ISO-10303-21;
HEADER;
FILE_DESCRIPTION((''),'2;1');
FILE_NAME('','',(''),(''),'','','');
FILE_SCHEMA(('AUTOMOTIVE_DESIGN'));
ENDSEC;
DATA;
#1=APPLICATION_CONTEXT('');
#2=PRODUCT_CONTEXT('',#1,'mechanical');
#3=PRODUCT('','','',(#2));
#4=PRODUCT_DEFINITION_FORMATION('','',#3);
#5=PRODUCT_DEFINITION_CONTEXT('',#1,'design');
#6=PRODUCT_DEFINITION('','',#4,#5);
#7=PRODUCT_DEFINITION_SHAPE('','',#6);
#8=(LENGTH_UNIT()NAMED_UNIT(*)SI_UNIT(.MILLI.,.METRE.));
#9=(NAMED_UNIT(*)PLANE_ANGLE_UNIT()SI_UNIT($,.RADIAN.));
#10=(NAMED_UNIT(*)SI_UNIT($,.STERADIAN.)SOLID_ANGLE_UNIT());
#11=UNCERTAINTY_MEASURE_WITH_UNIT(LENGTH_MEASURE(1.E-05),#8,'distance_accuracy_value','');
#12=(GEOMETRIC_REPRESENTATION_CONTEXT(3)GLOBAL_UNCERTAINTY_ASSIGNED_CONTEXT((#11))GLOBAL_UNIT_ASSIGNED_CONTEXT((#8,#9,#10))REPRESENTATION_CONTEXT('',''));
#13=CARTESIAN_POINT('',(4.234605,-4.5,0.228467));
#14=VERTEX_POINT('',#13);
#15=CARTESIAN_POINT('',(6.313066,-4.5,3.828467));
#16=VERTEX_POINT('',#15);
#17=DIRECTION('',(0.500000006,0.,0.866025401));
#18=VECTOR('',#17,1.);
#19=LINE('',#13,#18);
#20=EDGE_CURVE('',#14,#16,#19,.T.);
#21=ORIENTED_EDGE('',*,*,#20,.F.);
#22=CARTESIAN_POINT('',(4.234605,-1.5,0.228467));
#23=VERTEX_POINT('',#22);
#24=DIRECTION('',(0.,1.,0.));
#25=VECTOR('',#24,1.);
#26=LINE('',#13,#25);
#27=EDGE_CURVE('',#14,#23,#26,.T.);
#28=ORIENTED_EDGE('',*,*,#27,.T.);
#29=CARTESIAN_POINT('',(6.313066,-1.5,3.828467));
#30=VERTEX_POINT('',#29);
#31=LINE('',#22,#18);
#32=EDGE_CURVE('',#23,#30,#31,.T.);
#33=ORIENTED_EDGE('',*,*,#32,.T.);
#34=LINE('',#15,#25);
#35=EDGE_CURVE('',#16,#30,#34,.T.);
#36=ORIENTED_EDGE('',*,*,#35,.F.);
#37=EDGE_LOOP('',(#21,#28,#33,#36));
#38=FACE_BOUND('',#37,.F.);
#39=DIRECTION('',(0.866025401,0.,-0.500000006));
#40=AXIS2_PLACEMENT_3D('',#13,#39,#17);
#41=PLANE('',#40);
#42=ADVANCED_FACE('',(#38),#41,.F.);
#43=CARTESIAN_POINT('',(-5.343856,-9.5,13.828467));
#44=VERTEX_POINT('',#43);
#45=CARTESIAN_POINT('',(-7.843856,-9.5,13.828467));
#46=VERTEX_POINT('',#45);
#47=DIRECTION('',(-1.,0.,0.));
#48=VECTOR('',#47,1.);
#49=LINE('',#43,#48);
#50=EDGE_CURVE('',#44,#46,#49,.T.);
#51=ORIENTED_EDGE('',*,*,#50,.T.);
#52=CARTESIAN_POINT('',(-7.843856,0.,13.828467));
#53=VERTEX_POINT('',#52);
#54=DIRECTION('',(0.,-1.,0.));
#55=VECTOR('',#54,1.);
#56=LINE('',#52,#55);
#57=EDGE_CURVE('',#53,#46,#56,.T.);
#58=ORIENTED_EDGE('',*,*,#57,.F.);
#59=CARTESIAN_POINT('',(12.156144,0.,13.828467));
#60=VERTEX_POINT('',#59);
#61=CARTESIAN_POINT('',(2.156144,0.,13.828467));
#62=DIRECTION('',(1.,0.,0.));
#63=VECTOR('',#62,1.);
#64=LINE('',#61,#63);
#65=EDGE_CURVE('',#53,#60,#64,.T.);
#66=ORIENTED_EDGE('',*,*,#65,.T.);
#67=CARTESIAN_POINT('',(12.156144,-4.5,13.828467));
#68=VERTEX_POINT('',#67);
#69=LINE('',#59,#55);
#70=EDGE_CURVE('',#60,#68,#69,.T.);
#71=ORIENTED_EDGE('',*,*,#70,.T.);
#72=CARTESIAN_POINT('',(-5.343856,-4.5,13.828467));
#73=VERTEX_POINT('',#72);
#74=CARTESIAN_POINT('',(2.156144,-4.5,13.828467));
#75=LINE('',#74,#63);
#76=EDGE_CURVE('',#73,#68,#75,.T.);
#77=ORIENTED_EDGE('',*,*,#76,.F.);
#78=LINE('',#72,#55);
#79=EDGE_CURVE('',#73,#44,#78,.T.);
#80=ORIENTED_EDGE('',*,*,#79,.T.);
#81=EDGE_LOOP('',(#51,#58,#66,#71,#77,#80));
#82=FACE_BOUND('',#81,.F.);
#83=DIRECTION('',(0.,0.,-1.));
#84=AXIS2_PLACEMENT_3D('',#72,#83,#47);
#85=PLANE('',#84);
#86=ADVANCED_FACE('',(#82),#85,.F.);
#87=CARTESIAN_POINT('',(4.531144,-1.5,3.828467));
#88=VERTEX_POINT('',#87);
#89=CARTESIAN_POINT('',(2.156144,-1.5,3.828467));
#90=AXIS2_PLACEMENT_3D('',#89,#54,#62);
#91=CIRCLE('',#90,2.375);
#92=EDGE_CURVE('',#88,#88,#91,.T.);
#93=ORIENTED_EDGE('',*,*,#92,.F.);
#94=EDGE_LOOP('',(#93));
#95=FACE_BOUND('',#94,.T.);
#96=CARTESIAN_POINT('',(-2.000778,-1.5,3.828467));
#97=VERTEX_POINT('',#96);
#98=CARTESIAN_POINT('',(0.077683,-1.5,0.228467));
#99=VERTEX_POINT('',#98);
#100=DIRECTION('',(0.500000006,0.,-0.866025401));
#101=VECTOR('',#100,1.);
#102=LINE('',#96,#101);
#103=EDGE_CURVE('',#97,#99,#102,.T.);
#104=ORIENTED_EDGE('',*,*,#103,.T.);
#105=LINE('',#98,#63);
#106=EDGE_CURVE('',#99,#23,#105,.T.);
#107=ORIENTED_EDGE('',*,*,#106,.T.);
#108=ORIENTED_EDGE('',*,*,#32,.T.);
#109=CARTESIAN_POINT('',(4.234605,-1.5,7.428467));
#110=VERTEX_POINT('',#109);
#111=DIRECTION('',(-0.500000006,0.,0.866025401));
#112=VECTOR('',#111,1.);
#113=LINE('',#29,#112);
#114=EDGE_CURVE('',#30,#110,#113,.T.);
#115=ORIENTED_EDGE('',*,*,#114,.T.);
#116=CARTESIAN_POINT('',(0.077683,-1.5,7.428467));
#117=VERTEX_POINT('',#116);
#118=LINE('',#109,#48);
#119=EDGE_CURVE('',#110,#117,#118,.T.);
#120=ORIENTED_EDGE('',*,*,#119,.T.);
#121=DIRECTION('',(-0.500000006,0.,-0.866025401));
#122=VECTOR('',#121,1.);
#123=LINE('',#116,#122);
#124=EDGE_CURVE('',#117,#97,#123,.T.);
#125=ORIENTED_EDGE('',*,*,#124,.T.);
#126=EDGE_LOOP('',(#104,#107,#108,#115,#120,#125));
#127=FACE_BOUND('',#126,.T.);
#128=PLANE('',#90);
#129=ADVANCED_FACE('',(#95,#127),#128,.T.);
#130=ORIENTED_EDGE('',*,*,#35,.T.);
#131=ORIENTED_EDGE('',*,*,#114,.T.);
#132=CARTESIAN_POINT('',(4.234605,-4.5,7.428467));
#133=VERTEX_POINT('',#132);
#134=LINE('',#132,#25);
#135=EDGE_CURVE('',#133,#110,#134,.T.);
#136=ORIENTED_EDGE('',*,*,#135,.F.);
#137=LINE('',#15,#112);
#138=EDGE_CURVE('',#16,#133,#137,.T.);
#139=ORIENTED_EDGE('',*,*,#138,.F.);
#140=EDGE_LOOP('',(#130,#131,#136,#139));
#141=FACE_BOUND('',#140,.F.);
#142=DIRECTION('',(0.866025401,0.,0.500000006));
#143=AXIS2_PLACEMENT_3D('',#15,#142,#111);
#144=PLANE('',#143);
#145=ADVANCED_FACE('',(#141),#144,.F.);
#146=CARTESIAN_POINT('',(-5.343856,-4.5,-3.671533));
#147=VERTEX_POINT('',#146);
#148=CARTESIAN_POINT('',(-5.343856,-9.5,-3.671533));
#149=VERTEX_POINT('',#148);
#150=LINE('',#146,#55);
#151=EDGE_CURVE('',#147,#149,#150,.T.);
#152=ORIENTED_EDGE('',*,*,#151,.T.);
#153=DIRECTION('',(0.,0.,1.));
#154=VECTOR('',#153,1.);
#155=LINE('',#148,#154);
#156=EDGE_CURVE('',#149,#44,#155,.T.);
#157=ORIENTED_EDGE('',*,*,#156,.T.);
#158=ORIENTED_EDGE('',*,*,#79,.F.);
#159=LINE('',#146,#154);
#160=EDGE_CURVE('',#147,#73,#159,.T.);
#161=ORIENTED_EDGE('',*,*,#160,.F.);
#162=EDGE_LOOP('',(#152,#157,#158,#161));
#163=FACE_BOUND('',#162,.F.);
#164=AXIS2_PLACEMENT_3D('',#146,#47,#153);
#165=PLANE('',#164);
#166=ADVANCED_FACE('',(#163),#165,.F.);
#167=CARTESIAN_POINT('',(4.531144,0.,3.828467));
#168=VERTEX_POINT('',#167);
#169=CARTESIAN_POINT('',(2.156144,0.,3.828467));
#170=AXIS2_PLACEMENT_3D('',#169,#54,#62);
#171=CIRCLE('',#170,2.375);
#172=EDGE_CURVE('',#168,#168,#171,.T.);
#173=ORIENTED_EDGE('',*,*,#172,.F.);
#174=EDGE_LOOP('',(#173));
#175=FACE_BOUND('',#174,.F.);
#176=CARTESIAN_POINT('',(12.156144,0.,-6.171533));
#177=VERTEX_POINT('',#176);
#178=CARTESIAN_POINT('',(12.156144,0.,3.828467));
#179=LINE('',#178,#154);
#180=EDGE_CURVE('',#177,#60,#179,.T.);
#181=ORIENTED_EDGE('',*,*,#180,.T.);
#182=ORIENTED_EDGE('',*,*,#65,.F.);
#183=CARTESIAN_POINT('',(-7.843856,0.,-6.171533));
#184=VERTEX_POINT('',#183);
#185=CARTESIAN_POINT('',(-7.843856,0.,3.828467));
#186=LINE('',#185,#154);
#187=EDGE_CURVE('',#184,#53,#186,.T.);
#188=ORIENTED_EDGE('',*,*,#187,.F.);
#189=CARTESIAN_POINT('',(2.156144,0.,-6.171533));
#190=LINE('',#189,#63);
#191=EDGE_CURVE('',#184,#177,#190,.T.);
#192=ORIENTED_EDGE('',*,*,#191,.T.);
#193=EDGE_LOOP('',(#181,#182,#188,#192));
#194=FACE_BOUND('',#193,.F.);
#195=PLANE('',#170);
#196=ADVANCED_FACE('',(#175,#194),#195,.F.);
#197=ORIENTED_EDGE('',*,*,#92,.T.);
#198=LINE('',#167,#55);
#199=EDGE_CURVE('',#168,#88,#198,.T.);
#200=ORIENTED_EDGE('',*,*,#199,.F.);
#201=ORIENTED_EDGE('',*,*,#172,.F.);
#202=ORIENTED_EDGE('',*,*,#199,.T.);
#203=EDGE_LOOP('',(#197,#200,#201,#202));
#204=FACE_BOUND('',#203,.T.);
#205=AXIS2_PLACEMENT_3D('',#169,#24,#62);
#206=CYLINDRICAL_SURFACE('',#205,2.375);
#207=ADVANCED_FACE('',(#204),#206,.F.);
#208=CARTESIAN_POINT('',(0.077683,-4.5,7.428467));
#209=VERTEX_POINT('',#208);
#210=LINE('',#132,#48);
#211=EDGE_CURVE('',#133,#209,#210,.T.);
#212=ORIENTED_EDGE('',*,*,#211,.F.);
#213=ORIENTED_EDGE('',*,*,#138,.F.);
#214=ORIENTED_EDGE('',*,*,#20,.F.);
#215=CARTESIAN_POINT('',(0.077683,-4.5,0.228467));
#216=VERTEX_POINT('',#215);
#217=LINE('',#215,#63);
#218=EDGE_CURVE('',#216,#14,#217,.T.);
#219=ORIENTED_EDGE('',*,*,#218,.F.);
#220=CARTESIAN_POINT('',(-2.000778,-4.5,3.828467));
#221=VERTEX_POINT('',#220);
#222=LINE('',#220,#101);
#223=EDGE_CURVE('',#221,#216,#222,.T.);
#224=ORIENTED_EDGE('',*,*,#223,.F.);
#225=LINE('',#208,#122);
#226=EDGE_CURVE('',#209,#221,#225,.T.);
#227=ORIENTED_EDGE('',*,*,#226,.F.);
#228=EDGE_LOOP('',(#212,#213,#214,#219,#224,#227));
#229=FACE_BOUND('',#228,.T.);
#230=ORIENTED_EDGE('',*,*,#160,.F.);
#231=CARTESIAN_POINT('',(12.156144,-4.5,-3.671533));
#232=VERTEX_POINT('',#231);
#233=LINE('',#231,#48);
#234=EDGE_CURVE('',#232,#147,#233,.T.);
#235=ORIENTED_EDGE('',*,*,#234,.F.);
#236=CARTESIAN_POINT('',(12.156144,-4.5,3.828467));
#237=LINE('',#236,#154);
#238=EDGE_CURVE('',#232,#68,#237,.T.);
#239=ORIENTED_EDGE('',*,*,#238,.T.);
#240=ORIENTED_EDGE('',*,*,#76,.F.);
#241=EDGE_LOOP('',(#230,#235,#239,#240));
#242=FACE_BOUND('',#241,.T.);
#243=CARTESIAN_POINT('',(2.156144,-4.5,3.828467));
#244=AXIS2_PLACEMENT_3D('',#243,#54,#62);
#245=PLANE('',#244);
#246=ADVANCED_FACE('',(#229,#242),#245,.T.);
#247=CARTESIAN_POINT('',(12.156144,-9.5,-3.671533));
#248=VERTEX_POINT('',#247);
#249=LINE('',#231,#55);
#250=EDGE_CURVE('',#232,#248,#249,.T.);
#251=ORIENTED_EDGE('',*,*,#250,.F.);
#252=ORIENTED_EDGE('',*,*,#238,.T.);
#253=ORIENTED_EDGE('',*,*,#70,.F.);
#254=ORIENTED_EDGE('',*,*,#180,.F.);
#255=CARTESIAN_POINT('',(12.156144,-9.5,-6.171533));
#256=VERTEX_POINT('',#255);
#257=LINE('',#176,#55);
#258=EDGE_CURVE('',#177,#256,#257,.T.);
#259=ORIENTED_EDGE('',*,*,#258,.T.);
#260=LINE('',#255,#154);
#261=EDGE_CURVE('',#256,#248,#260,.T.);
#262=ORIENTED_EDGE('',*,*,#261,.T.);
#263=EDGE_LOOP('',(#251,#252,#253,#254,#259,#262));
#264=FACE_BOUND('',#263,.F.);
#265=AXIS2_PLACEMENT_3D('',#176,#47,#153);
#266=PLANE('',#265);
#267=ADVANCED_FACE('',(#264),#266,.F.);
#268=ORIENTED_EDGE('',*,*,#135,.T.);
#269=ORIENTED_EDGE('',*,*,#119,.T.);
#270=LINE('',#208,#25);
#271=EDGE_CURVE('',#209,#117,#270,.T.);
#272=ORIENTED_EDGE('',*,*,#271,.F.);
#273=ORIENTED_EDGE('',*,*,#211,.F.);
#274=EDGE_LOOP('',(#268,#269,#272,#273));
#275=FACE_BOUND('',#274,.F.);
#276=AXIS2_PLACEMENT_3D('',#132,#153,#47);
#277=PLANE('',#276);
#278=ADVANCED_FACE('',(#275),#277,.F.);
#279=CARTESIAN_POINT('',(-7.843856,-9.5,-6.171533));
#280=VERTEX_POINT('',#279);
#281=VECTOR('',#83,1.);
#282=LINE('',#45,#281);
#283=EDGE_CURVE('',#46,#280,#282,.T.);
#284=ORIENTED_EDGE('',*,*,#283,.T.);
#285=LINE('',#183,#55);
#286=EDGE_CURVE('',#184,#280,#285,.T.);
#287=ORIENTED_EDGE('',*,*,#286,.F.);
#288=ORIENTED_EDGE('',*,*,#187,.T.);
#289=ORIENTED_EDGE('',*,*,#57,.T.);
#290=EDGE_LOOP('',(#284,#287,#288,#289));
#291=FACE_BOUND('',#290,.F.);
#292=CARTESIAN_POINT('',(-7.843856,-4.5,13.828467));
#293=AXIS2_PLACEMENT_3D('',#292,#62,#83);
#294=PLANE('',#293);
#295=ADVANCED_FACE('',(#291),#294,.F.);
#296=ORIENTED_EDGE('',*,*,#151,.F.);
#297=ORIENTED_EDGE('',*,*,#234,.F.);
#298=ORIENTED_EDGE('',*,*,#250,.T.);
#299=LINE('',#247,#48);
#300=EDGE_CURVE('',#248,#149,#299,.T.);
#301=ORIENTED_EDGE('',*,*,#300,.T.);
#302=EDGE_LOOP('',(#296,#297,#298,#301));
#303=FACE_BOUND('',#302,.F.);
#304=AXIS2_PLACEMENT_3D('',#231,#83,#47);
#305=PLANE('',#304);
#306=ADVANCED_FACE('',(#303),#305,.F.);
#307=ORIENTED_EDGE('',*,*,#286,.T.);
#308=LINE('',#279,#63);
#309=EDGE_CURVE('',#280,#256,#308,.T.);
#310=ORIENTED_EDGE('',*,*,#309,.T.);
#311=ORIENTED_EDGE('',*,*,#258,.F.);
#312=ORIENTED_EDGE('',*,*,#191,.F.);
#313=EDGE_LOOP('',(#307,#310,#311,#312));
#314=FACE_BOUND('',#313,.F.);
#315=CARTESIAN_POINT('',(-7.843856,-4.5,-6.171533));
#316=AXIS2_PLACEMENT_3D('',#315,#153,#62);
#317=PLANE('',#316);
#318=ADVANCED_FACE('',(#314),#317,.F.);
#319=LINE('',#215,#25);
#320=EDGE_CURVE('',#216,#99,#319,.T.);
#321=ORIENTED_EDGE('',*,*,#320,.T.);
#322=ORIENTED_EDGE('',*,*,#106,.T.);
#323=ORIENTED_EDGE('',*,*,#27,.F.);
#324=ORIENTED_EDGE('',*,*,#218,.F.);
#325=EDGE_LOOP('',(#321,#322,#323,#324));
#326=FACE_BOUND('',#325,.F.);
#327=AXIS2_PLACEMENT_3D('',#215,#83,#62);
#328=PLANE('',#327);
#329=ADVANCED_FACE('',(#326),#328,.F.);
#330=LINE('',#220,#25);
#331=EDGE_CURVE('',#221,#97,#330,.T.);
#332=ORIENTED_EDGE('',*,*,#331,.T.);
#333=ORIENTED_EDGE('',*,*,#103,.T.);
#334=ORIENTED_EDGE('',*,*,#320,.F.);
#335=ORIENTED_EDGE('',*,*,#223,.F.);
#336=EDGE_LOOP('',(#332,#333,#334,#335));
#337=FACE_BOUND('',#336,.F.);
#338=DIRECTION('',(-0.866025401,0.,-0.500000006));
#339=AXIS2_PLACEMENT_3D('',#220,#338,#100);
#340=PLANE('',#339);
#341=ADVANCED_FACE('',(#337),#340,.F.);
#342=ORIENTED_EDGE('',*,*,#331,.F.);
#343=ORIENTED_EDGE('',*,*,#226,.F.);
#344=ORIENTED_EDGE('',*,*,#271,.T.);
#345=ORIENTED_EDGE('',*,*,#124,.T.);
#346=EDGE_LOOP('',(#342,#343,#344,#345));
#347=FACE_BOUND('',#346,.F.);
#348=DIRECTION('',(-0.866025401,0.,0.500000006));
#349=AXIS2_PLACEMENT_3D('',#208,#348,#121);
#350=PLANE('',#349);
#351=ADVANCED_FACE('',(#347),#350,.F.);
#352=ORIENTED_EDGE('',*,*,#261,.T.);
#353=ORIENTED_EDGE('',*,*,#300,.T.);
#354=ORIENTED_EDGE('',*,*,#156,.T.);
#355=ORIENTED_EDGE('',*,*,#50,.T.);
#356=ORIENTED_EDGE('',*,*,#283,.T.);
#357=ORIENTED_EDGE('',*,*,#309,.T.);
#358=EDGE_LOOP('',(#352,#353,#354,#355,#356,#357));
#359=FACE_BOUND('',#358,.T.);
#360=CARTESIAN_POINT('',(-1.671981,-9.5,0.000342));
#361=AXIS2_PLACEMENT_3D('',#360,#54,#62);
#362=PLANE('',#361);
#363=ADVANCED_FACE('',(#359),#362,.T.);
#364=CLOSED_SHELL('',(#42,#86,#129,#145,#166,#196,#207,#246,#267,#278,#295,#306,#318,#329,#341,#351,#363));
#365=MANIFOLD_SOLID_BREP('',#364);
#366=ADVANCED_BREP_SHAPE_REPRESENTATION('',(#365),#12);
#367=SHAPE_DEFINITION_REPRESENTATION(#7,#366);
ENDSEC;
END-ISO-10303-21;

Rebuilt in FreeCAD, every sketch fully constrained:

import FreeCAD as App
import Part
import Sketcher

V = App.Vector
Q = App.Units.Quantity

doc = App.newDocument("Part")
body = doc.addObject("PartDesign::Body", "Body")

sketch1 = body.newObject("Sketcher::SketchObject", "Sketch")
sketch1.AttachmentSupport = (doc.getObject("XZ_Plane"), [""])
sketch1.MapMode = "FlatFace"
sketch1.addGeometry(Part.LineSegment(V(-7.8, 13.8, 0), V(-7.8, -6.2, 0)), False)
sketch1.addGeometry(Part.LineSegment(V(-7.8, -6.2, 0), V(12.2, -6.2, 0)), False)
sketch1.addGeometry(Part.LineSegment(V(12.2, -6.2, 0), V(12.2, 13.8, 0)), False)
sketch1.addGeometry(Part.LineSegment(V(12.2, 13.8, 0), V(-7.8, 13.8, 0)), False)
sketch1.addGeometry(Part.Circle(V(2.2, 3.8, 0), V(0, 0, 1), 2.4), False)
sketch1.addConstraint(Sketcher.Constraint("Coincident", 0, 2, 1, 1))
sketch1.addConstraint(Sketcher.Constraint("Coincident", 1, 2, 2, 1))
sketch1.addConstraint(Sketcher.Constraint("Coincident", 2, 2, 3, 1))
sketch1.addConstraint(Sketcher.Constraint("Coincident", 3, 2, 0, 1))
sketch1.addConstraint(Sketcher.Constraint("Vertical", 0))
sketch1.addConstraint(Sketcher.Constraint("Horizontal", 1))
sketch1.addConstraint(Sketcher.Constraint("Vertical", 2))
sketch1.addConstraint(Sketcher.Constraint("Horizontal", 3))
sketch1.addConstraint(Sketcher.Constraint("Equal", 3, 0))
sketch1.addConstraint(Sketcher.Constraint("Diameter", 4, Q("4.75 mm")))
sketch1.addConstraint(Sketcher.Constraint("DistanceX", 1, 1, 1, 2, Q("20 mm")))
sketch1.addConstraint(Sketcher.Constraint("DistanceX", 0, 2, 4, 3, Q("10 mm")))
sketch1.addConstraint(Sketcher.Constraint("DistanceY", 0, 2, 4, 3, Q("10 mm")))
sketch1.addConstraint(Sketcher.Constraint("DistanceX", -1, 1, 4, 3, Q("2.156144 mm")))
sketch1.addConstraint(Sketcher.Constraint("DistanceY", -1, 1, 4, 3, Q("3.828467 mm")))
pad1 = body.newObject("PartDesign::Pad", "Pad")
pad1.Profile = sketch1
pad1.Length = 4.5

sketch2 = body.newObject("Sketcher::SketchObject", "Sketch001")
sketch2.AttachmentSupport = (doc.getObject("XZ_Plane"), [""])
sketch2.MapMode = "FlatFace"
sketch2.AttachmentOffset = App.Placement(V(0, 0, 4.5), App.Rotation())
sketch2.addGeometry(Part.LineSegment(V(-5.3, 13.8, 0), V(-7.8, 13.8, 0)), False)
sketch2.addGeometry(Part.LineSegment(V(-7.8, 13.8, 0), V(-7.8, -6.2, 0)), False)
sketch2.addGeometry(Part.LineSegment(V(-7.8, -6.2, 0), V(12.2, -6.2, 0)), False)
sketch2.addGeometry(Part.LineSegment(V(12.2, -6.2, 0), V(12.2, -3.7, 0)), False)
sketch2.addGeometry(Part.LineSegment(V(12.2, -3.7, 0), V(-5.3, -3.7, 0)), False)
sketch2.addGeometry(Part.LineSegment(V(-5.3, -3.7, 0), V(-5.3, 13.8, 0)), False)
sketch2.addConstraint(Sketcher.Constraint("Coincident", 0, 2, 1, 1))
sketch2.addConstraint(Sketcher.Constraint("Coincident", 1, 2, 2, 1))
sketch2.addConstraint(Sketcher.Constraint("Coincident", 2, 2, 3, 1))
sketch2.addConstraint(Sketcher.Constraint("Coincident", 3, 2, 4, 1))
sketch2.addConstraint(Sketcher.Constraint("Coincident", 4, 2, 5, 1))
sketch2.addConstraint(Sketcher.Constraint("Coincident", 5, 2, 0, 1))
sketch2.addConstraint(Sketcher.Constraint("Horizontal", 0))
sketch2.addConstraint(Sketcher.Constraint("Vertical", 1))
sketch2.addConstraint(Sketcher.Constraint("Horizontal", 2))
sketch2.addConstraint(Sketcher.Constraint("Vertical", 3))
sketch2.addConstraint(Sketcher.Constraint("Horizontal", 4))
sketch2.addConstraint(Sketcher.Constraint("Vertical", 5))
sketch2.addConstraint(Sketcher.Constraint("Equal", 2, 1))
sketch2.addConstraint(Sketcher.Constraint("Equal", 0, 3))
sketch2.addConstraint(Sketcher.Constraint("DistanceX", 2, 1, 2, 2, Q("20 mm")))
sketch2.addConstraint(Sketcher.Constraint("DistanceX", 0, 2, 0, 1, Q("2.5 mm")))
sketch2.addConstraint(Sketcher.Constraint("DistanceX", 0, 2, -1, 1, Q("7.843856 mm")))
sketch2.addConstraint(Sketcher.Constraint("DistanceY", -1, 1, 0, 2, Q("13.828467 mm")))
pad2 = body.newObject("PartDesign::Pad", "Pad001")
pad2.Profile = sketch2
pad2.Length = 5

sketch3 = body.newObject("Sketcher::SketchObject", "Sketch002")
sketch3.AttachmentSupport = (doc.getObject("XZ_Plane"), [""])
sketch3.MapMode = "FlatFace"
sketch3.AttachmentOffset = App.Placement(V(0, 0, 4.5), App.Rotation())
sketch3.addGeometry(Part.LineSegment(V(0.1, 7.4, 0), V(-2, 3.8, 0)), False)
sketch3.addGeometry(Part.LineSegment(V(-2, 3.8, 0), V(0.1, 0.2, 0)), False)
sketch3.addGeometry(Part.LineSegment(V(0.1, 0.2, 0), V(4.2, 0.2, 0)), False)
sketch3.addGeometry(Part.LineSegment(V(4.2, 0.2, 0), V(6.3, 3.8, 0)), False)
sketch3.addGeometry(Part.LineSegment(V(6.3, 3.8, 0), V(4.2, 7.4, 0)), False)
sketch3.addGeometry(Part.LineSegment(V(4.2, 7.4, 0), V(0.1, 7.4, 0)), False)
sketch3.addGeometry(Part.Circle(V(2.2, 3.8, 0), V(0, 0, 1), 2.4), False)
sketch3.addConstraint(Sketcher.Constraint("Coincident", 0, 2, 1, 1))
sketch3.addConstraint(Sketcher.Constraint("Coincident", 1, 2, 2, 1))
sketch3.addConstraint(Sketcher.Constraint("Coincident", 2, 2, 3, 1))
sketch3.addConstraint(Sketcher.Constraint("Coincident", 3, 2, 4, 1))
sketch3.addConstraint(Sketcher.Constraint("Coincident", 4, 2, 5, 1))
sketch3.addConstraint(Sketcher.Constraint("Coincident", 5, 2, 0, 1))
sketch3.addConstraint(Sketcher.Constraint("Horizontal", 2))
sketch3.addConstraint(Sketcher.Constraint("Horizontal", 5))
sketch3.addConstraint(Sketcher.Constraint("Parallel", 0, 3))
sketch3.addConstraint(Sketcher.Constraint("Parallel", 1, 4))
sketch3.addConstraint(Sketcher.Constraint("Horizontal", 6, 3, 0, 2))
sketch3.addConstraint(Sketcher.Constraint("Horizontal", 0, 2, 3, 2))
sketch3.addConstraint(Sketcher.Constraint("Vertical", 2, 2, 4, 2))
sketch3.addConstraint(Sketcher.Constraint("Vertical", 1, 2, 5, 2))
sketch3.addConstraint(Sketcher.Constraint("Diameter", 6, Q("4.75 mm")))
sketch3.addConstraint(Sketcher.Constraint("Angle", 0, Q("-120 deg")))
sketch3.addConstraint(Sketcher.Constraint("DistanceY", 1, 2, 6, 3, Q("3.6 mm")))
sketch3.addConstraint(Sketcher.Constraint("DistanceX", 2, 1, 2, 2, Q("4.156922 mm")))
sketch3.addConstraint(Sketcher.Constraint("DistanceX", 0, 2, -1, 1, Q("2.000778 mm")))
sketch3.addConstraint(Sketcher.Constraint("DistanceX", 0, 2, 6, 3, Q("4.156922 mm")))
sketch3.addConstraint(Sketcher.Constraint("DistanceY", -1, 1, 6, 3, Q("3.828467 mm")))
pocket1 = body.newObject("PartDesign::Pocket", "Pocket")
pocket1.Profile = sketch3
pocket1.Length = 3

doc.recompute()
